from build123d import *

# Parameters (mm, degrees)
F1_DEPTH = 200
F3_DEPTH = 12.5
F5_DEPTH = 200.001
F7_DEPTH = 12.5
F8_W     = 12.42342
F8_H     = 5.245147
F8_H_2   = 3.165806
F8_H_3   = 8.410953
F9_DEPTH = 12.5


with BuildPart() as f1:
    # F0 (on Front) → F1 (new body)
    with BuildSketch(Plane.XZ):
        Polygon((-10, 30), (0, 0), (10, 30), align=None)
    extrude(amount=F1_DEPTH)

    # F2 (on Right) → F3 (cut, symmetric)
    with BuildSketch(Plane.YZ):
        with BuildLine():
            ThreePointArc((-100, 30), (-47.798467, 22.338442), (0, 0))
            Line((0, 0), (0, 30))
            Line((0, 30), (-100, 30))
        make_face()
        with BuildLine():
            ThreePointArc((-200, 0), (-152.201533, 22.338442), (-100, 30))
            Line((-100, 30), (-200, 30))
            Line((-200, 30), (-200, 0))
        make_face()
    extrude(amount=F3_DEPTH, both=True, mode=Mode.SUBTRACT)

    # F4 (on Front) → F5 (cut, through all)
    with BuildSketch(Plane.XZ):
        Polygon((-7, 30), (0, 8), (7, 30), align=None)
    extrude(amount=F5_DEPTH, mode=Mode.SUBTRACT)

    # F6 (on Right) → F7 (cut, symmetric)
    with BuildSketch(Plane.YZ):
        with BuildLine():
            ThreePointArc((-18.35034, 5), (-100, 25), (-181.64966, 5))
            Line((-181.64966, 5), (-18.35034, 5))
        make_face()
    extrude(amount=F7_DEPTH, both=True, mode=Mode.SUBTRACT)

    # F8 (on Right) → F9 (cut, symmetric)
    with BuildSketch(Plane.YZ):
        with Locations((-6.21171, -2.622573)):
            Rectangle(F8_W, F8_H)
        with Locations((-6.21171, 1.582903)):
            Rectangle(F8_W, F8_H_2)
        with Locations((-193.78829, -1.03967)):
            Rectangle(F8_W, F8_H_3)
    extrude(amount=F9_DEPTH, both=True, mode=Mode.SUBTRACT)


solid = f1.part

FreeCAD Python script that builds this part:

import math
import FreeCAD as App
import Part
import Sketcher
from FreeCAD import Vector
Q = App.Units.Quantity


def add_polygon(sketch, points):
    """Adds a closed chain of lines whose ends are joined by coincident constraints."""
    first, n = sketch.GeometryCount, len(points)
    for a, b in zip(points, points[1:] + points[:1]):
        sketch.addGeometry(Part.LineSegment(App.Vector(*a, 0), App.Vector(*b, 0)), False)
    for i in range(n):
        sketch.addConstraint(Sketcher.Constraint("Coincident", first + i, 2, first + (i + 1) % n, 1))

doc = App.newDocument("Part")
params = doc.addObject("Spreadsheet::Sheet", "Params")
for row, (alias, value) in enumerate([
    ("sketch1_width", "20 mm"),
    ("pad1_length", "200 mm"),
    ("sketch2_width", "100 mm"),
    ("sketch2_height", "30 mm"),
    ("pocket1_length", "25 mm"),
    ("sketch3_width", "14 mm"),
    ("pocket3_length", "25 mm"),
    ("pocket4_length", "25 mm"),
], start=1):
    params.set(f"A{row}", alias)
    params.set(f"B{row}", "=" + value)
    params.setAlias(f"B{row}", alias)

body = doc.addObject("PartDesign::Body", "Body")

# Sketch on XZ plane
sketch1 = body.newObject("Sketcher::SketchObject", "Sketch")
sketch1.AttachmentSupport = (doc.getObject("XZ_Plane"), [""])
sketch1.MapMode = "FlatFace"
add_polygon(sketch1, [(-10, 30), (0, 0), (10, 30)])  # lines 0-2
sketch1.addConstraint([
    Sketcher.Constraint("Horizontal", 2),
    Sketcher.Constraint("Coincident", 0, 2, -1, 1),
    Sketcher.Constraint("Equal", 0, 1),
    Sketcher.Constraint("DistanceX", 2, 2, 2, 1, Q("20 mm")),
    Sketcher.Constraint("DistanceY", -1, 1, 1, 2, Q("30 mm")),
])
sketch1.setExpression("Constraints[6]", "Params.sketch1_width")
pad1 = body.newObject("PartDesign::Pad", "Pad")
pad1.Profile = sketch1
pad1.setExpression("Length", "Params.pad1_length")

# Sketch on YZ plane
sketch2 = body.newObject("Sketcher::SketchObject", "Sketch001")
sketch2.AttachmentSupport = (doc.getObject("YZ_Plane"), [""])
sketch2.MapMode = "FlatFace"
sketch2.addGeometry([
    Part.ArcOfCircle(Part.Circle(Vector(-100, -152, 0), Vector(0, 0, 1), 182), math.radians(57), math.radians(90)),  # 0
    Part.LineSegment(Vector(0, 0, 0), Vector(0, 30, 0)),  # 1
    Part.LineSegment(Vector(0, 30, 0), Vector(-100, 30, 0)),  # 2
    Part.ArcOfCircle(Part.Circle(Vector(-100, -152, 0), Vector(0, 0, 1), 182), math.radians(90), math.radians(123)),  # 3
    Part.LineSegment(Vector(-100, 30, 0), Vector(-200, 30, 0)),  # 4
    Part.LineSegment(Vector(-200, 30, 0), Vector(-200, 0, 0)),  # 5
], False)
sketch2.addConstraint([
    Sketcher.Constraint("Coincident", 0, 1, 1, 1),
    Sketcher.Constraint("Coincident", 1, 2, 2, 1),
    Sketcher.Constraint("Tangent", 2, 2, 0, 2),
    Sketcher.Constraint("Tangent", 3, 1, 4, 1),
    Sketcher.Constraint("Coincident", 4, 2, 5, 1),
    Sketcher.Constraint("Coincident", 5, 2, 3, 2),
    Sketcher.Constraint("Vertical", 1),
    Sketcher.Constraint("Horizontal", 2),
    Sketcher.Constraint("Horizontal", 4),
    Sketcher.Constraint("Vertical", 5),
    Sketcher.Constraint("Coincident", 0, 1, -1, 1),
    Sketcher.Constraint("Coincident", 3, 3, 0, 3),
    Sketcher.Constraint("Equal", 0, 3),
    Sketcher.Constraint("PointOnObject", 5, 2, -1),
    Sketcher.Constraint("DistanceX", 2, 2, 2, 1, Q("100 mm")),
    Sketcher.Constraint("DistanceY", 1, 1, 1, 2, Q("30 mm")),
])
sketch2.setExpression("Constraints[14]", "Params.sketch2_width")
sketch2.setExpression("Constraints[15]", "Params.sketch2_height")
pocket1 = body.newObject("PartDesign::Pocket", "Pocket")
pocket1.Profile = sketch2
pocket1.setExpression("Length", "Params.pocket1_length")
pocket1.Midplane = True

# Sketch on XZ plane
sketch3 = body.newObject("Sketcher::SketchObject", "Sketch002")
sketch3.AttachmentSupport = (doc.getObject("XZ_Plane"), [""])
sketch3.MapMode = "FlatFace"
add_polygon(sketch3, [(-7, 30), (0, 8), (7, 30)])  # lines 0-2
sketch3.addConstraint([
    Sketcher.Constraint("Horizontal", 2),
    Sketcher.Constraint("PointOnObject", 0, 2, -2),
    Sketcher.Constraint("Equal", 0, 1),
    Sketcher.Constraint("DistanceX", 2, 2, 2, 1, Q("14 mm")),
    Sketcher.Constraint("DistanceY", -1, 1, 0, 2, Q("8 mm")),
    Sketcher.Constraint("DistanceY", -1, 1, 1, 2, Q("30 mm")),
])
sketch3.setExpression("Constraints[6]", "Params.sketch3_width")
pocket2 = body.newObject("PartDesign::Pocket", "Pocket001")
pocket2.Profile = sketch3
pocket2.Type = "ThroughAll"
pocket2.Reversed = True

# Sketch on YZ plane
sketch4 = body.newObject("Sketcher::SketchObject", "Sketch003")
sketch4.AttachmentSupport = (doc.getObject("YZ_Plane"), [""])
sketch4.MapMode = "FlatFace"
sketch4.addGeometry([
    Part.ArcOfCircle(Part.Circle(Vector(-100, -152, 0), Vector(0, 0, 1), 177), math.radians(62), math.radians(118)),
    Part.LineSegment(Vector(-182, 5, 0), Vector(-18, 5, 0)),
], False)
sketch4.addConstraint([
    Sketcher.Constraint("Coincident", 0, 1, 1, 2),
    Sketcher.Constraint("Coincident", 1, 1, 0, 2),
    Sketcher.Constraint("Horizontal", 1),
    Sketcher.Constraint("DistanceX", 0, 3, -1, 1, Q("100 mm")),
    Sketcher.Constraint("DistanceY", -1, 1, 0, 1, Q("5 mm")),
    Sketcher.Constraint("Radius", 0, Q("176.666674 mm")),
    Sketcher.Constraint("DistanceX", 1, 1, 1, 2, Q("163.29932 mm")),
])
pocket3 = body.newObject("PartDesign::Pocket", "Pocket002")
pocket3.Profile = sketch4
pocket3.setExpression("Length", "Params.pocket3_length")
pocket3.Midplane = True

# Sketch on YZ plane
sketch5 = body.newObject("Sketcher::SketchObject", "Sketch004")
sketch5.AttachmentSupport = (doc.getObject("YZ_Plane"), [""])
sketch5.MapMode = "FlatFace"
add_polygon(sketch5, [(-12, -5), (0, -5), (0, 3), (-12, 3)])  # lines 0-3
add_polygon(sketch5, [(-200, 3), (-200, -5), (-188, -5), (-188, 3)])  # lines 4-7
sketch5.addConstraint([
    Sketcher.Constraint("Horizontal", 0),
    Sketcher.Constraint("Vertical", 1),
    Sketcher.Constraint("Horizontal", 2),
    Sketcher.Constraint("Vertical", 3),
    Sketcher.Constraint("Vertical", 4),
    Sketcher.Constraint("Horizontal", 5),
    Sketcher.Constraint("Vertical", 6),
    Sketcher.Constraint("Horizontal", 7),
    Sketcher.Constraint("PointOnObject", 0, 2, -2),
    Sketcher.Constraint("Horizontal", 3, 2, 4, 2),
    Sketcher.Constraint("Horizontal", 2, 2, 6, 2),
    Sketcher.Constraint("Equal", 2, 5),
    Sketcher.Constraint("DistanceX", 4, 2, -1, 1, Q("200 mm")),
    Sketcher.Constraint("DistanceX", 0, 1, 0, 2, Q("12.42342 mm")),
    Sketcher.Constraint("DistanceY", 1, 1, 1, 2, Q("8.410953 mm")),
    Sketcher.Constraint("DistanceY", 0, 2, -1, 1, Q("5.245146 mm")),
])
pocket4 = body.newObject("PartDesign::Pocket", "Pocket003")
pocket4.Profile = sketch5
pocket4.setExpression("Length", "Params.pocket4_length")
pocket4.Midplane = True

doc.recompute()
